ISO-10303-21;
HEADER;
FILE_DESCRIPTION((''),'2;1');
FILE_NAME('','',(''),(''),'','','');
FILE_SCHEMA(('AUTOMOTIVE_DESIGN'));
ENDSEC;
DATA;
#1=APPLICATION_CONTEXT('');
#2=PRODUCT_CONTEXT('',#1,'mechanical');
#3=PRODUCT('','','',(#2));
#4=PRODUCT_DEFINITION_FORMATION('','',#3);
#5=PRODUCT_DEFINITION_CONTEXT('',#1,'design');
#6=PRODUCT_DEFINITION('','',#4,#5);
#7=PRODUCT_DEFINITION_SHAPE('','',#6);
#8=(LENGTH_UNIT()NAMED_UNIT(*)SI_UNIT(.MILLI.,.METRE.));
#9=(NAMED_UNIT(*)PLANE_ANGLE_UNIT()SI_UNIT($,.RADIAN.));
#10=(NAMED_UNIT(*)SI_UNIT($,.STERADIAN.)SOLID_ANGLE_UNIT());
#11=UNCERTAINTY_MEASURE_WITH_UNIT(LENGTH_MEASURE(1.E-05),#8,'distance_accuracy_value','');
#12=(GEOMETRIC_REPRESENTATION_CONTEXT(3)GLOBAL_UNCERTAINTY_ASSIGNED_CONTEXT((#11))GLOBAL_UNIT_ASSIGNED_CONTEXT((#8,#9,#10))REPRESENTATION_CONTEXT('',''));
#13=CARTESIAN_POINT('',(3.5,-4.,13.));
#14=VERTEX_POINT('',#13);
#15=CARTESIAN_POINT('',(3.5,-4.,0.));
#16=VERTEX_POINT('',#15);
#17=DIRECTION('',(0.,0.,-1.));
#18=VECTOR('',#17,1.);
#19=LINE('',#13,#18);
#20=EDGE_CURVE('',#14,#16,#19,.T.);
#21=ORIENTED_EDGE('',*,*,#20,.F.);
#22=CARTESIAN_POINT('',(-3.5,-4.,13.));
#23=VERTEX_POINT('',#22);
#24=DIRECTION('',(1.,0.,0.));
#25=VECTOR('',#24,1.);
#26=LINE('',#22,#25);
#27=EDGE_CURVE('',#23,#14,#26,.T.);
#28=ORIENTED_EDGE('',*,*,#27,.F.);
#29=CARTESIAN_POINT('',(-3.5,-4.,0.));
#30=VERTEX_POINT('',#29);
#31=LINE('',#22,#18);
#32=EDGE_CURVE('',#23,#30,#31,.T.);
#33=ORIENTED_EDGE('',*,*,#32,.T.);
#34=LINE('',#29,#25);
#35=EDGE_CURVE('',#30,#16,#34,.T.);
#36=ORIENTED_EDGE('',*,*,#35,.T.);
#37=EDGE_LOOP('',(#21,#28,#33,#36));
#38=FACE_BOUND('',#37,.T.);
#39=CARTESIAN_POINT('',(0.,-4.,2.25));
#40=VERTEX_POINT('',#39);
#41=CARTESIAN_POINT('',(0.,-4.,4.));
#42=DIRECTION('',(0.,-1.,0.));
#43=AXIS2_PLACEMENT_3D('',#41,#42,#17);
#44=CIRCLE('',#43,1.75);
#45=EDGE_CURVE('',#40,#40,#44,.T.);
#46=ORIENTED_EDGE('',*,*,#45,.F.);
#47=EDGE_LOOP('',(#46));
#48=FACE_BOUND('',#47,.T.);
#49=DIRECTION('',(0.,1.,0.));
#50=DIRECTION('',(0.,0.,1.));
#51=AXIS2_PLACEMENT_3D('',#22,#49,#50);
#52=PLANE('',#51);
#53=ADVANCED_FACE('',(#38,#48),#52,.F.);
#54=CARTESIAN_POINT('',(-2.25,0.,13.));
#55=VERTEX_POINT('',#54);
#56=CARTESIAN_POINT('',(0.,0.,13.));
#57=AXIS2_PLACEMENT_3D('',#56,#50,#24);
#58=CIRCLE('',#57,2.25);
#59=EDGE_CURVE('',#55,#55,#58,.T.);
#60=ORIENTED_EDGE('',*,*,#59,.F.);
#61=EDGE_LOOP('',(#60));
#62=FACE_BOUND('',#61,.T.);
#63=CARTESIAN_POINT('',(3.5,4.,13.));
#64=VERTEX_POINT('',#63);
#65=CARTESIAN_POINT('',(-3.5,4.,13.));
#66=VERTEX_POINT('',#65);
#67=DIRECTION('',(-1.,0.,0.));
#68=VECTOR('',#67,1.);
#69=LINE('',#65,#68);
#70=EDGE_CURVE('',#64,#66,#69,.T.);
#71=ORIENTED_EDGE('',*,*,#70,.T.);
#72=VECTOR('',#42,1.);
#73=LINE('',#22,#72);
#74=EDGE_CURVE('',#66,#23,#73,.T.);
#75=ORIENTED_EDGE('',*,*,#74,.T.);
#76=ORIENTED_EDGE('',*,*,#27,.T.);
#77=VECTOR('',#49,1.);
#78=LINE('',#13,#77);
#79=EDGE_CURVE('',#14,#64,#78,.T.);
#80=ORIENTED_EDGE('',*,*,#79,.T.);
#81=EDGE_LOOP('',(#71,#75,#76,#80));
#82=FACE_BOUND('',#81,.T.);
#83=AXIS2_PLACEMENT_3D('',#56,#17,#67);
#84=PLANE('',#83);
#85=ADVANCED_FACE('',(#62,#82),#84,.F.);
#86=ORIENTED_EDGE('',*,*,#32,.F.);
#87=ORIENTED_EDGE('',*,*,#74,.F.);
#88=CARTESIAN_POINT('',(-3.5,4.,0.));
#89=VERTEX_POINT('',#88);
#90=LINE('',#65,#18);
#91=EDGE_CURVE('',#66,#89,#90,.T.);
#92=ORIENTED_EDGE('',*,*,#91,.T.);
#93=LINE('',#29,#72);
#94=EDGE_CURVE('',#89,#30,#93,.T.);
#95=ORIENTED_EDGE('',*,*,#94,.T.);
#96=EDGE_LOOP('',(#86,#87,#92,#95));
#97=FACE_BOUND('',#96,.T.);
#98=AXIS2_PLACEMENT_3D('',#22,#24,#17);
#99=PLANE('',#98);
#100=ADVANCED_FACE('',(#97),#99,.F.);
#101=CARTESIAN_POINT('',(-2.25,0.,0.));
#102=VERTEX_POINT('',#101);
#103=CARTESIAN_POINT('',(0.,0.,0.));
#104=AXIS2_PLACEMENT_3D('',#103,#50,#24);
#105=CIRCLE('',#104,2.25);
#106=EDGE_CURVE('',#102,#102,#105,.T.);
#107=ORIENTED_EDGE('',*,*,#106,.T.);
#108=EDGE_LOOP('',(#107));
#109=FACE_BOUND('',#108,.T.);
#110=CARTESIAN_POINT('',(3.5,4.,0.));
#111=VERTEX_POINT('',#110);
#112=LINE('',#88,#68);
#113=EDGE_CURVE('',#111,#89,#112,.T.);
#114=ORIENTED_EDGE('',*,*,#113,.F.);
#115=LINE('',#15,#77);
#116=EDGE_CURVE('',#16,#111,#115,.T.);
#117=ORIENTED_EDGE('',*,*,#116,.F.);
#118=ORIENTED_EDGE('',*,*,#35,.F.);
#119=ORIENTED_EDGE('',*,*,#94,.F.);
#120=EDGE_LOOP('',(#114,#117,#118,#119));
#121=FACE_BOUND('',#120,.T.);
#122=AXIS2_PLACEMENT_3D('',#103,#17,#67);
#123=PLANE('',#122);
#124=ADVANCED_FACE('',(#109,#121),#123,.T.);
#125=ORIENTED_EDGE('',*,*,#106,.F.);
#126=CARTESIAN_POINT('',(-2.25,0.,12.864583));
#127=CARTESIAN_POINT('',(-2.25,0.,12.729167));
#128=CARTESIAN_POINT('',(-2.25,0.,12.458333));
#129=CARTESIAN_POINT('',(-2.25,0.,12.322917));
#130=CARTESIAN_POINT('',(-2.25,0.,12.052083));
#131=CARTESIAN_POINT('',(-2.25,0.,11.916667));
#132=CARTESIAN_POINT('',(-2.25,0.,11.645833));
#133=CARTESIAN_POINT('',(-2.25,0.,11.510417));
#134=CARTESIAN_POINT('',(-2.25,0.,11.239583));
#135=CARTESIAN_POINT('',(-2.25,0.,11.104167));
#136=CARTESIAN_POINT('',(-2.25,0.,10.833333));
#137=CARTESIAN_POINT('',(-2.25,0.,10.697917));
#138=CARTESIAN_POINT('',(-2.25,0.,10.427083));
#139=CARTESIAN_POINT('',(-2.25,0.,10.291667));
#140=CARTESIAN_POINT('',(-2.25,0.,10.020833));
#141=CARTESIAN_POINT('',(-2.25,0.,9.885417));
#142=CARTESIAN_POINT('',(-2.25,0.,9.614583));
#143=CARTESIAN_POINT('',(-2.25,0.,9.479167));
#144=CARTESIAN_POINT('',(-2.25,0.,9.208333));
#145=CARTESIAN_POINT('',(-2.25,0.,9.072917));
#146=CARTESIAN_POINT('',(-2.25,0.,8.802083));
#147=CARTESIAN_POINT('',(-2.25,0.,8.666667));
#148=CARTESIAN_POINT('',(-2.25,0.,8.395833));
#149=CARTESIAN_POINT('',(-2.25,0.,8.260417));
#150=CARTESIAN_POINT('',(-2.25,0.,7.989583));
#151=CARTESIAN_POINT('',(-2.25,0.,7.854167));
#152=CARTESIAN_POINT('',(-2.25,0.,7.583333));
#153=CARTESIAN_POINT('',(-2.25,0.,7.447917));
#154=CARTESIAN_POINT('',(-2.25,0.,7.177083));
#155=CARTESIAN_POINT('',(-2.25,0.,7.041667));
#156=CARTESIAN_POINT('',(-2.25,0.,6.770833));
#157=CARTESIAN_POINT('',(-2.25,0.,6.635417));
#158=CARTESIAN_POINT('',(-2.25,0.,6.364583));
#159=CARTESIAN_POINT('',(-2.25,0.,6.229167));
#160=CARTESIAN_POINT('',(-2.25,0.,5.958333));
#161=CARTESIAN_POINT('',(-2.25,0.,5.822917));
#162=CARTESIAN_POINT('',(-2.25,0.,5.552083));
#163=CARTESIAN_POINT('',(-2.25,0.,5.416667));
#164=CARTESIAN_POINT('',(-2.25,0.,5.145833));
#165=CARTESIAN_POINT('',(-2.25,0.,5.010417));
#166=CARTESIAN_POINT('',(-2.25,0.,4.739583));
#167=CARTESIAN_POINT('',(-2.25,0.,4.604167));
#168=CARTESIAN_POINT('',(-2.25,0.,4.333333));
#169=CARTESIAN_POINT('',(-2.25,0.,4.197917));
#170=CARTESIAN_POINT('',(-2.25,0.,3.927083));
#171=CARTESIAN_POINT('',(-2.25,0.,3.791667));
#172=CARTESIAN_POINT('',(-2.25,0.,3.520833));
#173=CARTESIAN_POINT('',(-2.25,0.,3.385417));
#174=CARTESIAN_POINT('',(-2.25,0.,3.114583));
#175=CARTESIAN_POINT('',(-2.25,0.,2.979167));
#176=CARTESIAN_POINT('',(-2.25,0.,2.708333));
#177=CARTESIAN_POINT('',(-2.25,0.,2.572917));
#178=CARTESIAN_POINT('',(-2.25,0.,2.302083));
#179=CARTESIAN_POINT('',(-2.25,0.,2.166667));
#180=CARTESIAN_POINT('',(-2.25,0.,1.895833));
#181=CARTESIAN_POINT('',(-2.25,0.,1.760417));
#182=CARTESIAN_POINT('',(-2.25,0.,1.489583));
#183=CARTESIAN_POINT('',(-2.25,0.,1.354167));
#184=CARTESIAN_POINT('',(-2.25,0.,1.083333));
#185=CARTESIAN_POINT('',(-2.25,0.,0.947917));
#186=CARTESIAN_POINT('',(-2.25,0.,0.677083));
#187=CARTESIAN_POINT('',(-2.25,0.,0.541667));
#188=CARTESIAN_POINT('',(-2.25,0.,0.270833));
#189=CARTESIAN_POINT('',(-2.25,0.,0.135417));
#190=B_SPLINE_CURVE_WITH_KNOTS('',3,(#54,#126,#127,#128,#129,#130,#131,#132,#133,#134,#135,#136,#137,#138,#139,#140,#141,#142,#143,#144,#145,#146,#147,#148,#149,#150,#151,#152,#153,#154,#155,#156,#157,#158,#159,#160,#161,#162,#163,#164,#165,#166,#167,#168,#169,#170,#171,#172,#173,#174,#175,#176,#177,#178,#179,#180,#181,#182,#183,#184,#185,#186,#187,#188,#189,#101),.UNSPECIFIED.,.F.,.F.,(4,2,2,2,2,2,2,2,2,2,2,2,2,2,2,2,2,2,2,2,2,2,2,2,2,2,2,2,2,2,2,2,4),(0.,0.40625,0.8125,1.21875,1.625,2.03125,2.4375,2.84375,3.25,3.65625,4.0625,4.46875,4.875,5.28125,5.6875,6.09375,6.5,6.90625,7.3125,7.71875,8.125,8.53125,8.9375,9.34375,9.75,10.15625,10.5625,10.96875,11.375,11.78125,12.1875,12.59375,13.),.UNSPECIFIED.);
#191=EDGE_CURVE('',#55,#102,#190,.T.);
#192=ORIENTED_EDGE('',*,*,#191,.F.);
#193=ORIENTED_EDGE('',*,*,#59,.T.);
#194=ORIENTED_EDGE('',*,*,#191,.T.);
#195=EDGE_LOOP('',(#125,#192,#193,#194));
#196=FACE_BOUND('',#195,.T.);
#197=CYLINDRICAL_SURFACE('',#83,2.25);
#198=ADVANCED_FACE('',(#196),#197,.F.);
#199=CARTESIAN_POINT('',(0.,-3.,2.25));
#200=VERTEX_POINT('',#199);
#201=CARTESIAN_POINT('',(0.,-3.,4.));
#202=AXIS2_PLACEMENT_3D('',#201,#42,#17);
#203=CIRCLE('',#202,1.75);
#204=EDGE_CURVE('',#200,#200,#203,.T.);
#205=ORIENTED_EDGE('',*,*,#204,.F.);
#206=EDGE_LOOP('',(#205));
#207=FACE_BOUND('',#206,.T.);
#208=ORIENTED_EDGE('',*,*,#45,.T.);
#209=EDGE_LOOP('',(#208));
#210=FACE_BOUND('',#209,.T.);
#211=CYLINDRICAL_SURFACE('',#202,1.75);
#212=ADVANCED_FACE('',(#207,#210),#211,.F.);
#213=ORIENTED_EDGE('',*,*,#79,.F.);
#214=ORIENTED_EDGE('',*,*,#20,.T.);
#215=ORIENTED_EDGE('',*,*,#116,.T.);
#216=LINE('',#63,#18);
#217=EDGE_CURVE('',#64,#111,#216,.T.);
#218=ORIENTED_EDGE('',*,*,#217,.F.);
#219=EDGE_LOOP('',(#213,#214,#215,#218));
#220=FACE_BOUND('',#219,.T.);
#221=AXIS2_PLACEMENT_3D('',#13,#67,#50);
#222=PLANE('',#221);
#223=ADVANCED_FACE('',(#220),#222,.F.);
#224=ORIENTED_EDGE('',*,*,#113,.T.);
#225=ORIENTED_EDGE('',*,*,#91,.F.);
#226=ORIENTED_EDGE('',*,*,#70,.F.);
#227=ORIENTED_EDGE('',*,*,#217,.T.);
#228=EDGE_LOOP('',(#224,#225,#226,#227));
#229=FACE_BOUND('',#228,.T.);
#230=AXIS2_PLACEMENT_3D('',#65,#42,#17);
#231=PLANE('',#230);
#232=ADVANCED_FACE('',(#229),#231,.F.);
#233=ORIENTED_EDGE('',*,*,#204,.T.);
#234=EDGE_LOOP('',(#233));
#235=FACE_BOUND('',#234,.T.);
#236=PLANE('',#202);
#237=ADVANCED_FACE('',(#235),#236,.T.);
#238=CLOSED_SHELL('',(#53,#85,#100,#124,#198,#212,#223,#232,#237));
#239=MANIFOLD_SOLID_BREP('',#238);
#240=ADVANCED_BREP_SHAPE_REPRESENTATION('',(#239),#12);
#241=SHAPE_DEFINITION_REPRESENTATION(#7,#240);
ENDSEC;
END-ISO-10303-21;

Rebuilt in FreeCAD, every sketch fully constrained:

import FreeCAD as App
import Part
import Sketcher

V = App.Vector


def add_polygon(sketch, points):
    """Adds a closed chain of lines whose ends are joined by coincident constraints."""
    first, n = sketch.GeometryCount, len(points)
    for a, b in zip(points, points[1:] + points[:1]):
        sketch.addGeometry(Part.LineSegment(App.Vector(*a, 0), App.Vector(*b, 0)), False)
    for i in range(n):
        sketch.addConstraint(Sketcher.Constraint("Coincident", first + i, 2, first + (i + 1) % n, 1))

doc = App.newDocument("Part")
body = doc.addObject("PartDesign::Body", "Body")

# Sketch on XY plane
sketch1 = body.newObject("Sketcher::SketchObject", "Sketch")
sketch1.AttachmentSupport = (doc.getObject("XY_Plane"), [""])
sketch1.MapMode = "FlatFace"
add_polygon(sketch1, [(-3.5, 4), (-3.5, -4), (3.5, -4), (3.5, 4)])  # lines 0-3
sketch1.addGeometry(Part.Circle(V(0, 0, 0), V(0, 0, 1), 2.2), False)  # 4
sketch1.addConstraint(Sketcher.Constraint("Vertical", 0))
sketch1.addConstraint(Sketcher.Constraint("Horizontal", 1))
sketch1.addConstraint(Sketcher.Constraint("Vertical", 2))
sketch1.addConstraint(Sketcher.Constraint("Horizontal", 3))
sketch1.addConstraint(Sketcher.Constraint("Coincident", 4, 3, -1, 1))
sketch1.addConstraint(Sketcher.Constraint("Symmetric", 0, 2, 2, 2, -1, 1))
sketch1.addConstraint(Sketcher.Constraint("Diameter", 4, 4.5))
sketch1.addConstraint(Sketcher.Constraint("DistanceX", 1, 1, 1, 2, 7.0))
sketch1.addConstraint(Sketcher.Constraint("DistanceY", 0, 2, 0, 1, 8.0))
pad1 = body.newObject("PartDesign::Pad", "Pad")
pad1.Profile = sketch1
pad1.Length = 13

# Sketch on XZ plane
sketch2 = body.newObject("Sketcher::SketchObject", "Sketch001")
sketch2.AttachmentSupport = (doc.getObject("XZ_Plane"), [""])
sketch2.MapMode = "FlatFace"
sketch2.AttachmentOffset = App.Placement(V(0, 0, 4), App.Rotation())
sketch2.addGeometry(Part.Circle(V(0, 4, 0), V(0, 0, 1), 1.8), False)
sketch2.addConstraint(Sketcher.Constraint("PointOnObject", 0, 3, -2))
sketch2.addConstraint(Sketcher.Constraint("Diameter", 0, 3.5))
sketch2.addConstraint(Sketcher.Constraint("DistanceY", -1, 1, 0, 3, 4.0))
pocket1 = body.newObject("PartDesign::Pocket", "Pocket")
pocket1.Profile = sketch2
pocket1.Length = 1

doc.recompute()
